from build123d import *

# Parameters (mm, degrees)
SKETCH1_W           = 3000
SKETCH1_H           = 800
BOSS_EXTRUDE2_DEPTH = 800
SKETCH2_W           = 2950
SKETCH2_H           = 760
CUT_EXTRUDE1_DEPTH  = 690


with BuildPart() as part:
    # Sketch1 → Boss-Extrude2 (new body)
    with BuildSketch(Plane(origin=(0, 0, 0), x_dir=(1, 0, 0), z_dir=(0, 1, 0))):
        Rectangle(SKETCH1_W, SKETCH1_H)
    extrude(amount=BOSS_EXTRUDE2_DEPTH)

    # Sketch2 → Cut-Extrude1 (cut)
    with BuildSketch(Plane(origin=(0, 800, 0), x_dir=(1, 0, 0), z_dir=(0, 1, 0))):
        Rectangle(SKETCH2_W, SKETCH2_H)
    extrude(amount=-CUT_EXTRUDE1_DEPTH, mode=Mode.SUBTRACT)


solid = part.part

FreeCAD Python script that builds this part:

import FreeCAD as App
import Part
import Sketcher

V = App.Vector

doc = App.newDocument("Part")
body = doc.addObject("PartDesign::Body", "Body")

sketch1 = body.newObject("Sketcher::SketchObject", "Sketch")
sketch1.AttachmentSupport = (doc.getObject("XZ_Plane"), [""])
sketch1.MapMode = "FlatFace"
sketch1.addGeometry([
    Part.LineSegment(V(-1500, -400, 0), V(-1500, 400, 0)),
    Part.LineSegment(V(-1500, 400, 0), V(1500, 400, 0)),
    Part.LineSegment(V(1500, 400, 0), V(1500, -400, 0)),
    Part.LineSegment(V(1500, -400, 0), V(-1500, -400, 0)),
], False)
sketch1.addConstraint([
    Sketcher.Constraint("Coincident", 0, 2, 1, 1),
    Sketcher.Constraint("Coincident", 1, 2, 2, 1),
    Sketcher.Constraint("Coincident", 2, 2, 3, 1),
    Sketcher.Constraint("Coincident", 3, 2, 0, 1),
    Sketcher.Constraint("Vertical", 0),
    Sketcher.Constraint("Horizontal", 1),
    Sketcher.Constraint("Vertical", 2),
    Sketcher.Constraint("Horizontal", 3),
    Sketcher.Constraint("Symmetric", 0, 2, 2, 2, -1, 1),
    Sketcher.Constraint("DistanceX", 1, 1, 1, 2, 3000.0),
    Sketcher.Constraint("DistanceY", 0, 1, 0, 2, 800.0),
])
pad1 = body.newObject("PartDesign::Pad", "Pad")
pad1.Profile = sketch1
pad1.Length = 800
pad1.Reversed = True

sketch2 = body.newObject("Sketcher::SketchObject", "Sketch001")
sketch2.AttachmentSupport = (doc.getObject("XZ_Plane"), [""])
sketch2.MapMode = "FlatFace"
sketch2.AttachmentOffset = App.Placement(V(0, 0, -800), App.Rotation())
sketch2.addGeometry([
    Part.LineSegment(V(-1475, -380, 0), V(-1475, 380, 0)),
    Part.LineSegment(V(-1475, 380, 0), V(1475, 380, 0)),
    Part.LineSegment(V(1475, 380, 0), V(1475, -380, 0)),
    Part.LineSegment(V(1475, -380, 0), V(-1475, -380, 0)),
], False)
sketch2.addConstraint([
    Sketcher.Constraint("Coincident", 0, 2, 1, 1),
    Sketcher.Constraint("Coincident", 1, 2, 2, 1),
    Sketcher.Constraint("Coincident", 2, 2, 3, 1),
    Sketcher.Constraint("Coincident", 3, 2, 0, 1),
    Sketcher.Constraint("Vertical", 0),
    Sketcher.Constraint("Horizontal", 1),
    Sketcher.Constraint("Vertical", 2),
    Sketcher.Constraint("Horizontal", 3),
    Sketcher.Constraint("Symmetric", 0, 2, 2, 2, -1, 1),
    Sketcher.Constraint("DistanceX", 1, 1, 1, 2, 2950.0),
    Sketcher.Constraint("DistanceY", 0, 1, 0, 2, 760.0),
])
pocket1 = body.newObject("PartDesign::Pocket", "Pocket")
pocket1.Profile = sketch2
pocket1.Length = 690
pocket1.Reversed = True

doc.recompute()
